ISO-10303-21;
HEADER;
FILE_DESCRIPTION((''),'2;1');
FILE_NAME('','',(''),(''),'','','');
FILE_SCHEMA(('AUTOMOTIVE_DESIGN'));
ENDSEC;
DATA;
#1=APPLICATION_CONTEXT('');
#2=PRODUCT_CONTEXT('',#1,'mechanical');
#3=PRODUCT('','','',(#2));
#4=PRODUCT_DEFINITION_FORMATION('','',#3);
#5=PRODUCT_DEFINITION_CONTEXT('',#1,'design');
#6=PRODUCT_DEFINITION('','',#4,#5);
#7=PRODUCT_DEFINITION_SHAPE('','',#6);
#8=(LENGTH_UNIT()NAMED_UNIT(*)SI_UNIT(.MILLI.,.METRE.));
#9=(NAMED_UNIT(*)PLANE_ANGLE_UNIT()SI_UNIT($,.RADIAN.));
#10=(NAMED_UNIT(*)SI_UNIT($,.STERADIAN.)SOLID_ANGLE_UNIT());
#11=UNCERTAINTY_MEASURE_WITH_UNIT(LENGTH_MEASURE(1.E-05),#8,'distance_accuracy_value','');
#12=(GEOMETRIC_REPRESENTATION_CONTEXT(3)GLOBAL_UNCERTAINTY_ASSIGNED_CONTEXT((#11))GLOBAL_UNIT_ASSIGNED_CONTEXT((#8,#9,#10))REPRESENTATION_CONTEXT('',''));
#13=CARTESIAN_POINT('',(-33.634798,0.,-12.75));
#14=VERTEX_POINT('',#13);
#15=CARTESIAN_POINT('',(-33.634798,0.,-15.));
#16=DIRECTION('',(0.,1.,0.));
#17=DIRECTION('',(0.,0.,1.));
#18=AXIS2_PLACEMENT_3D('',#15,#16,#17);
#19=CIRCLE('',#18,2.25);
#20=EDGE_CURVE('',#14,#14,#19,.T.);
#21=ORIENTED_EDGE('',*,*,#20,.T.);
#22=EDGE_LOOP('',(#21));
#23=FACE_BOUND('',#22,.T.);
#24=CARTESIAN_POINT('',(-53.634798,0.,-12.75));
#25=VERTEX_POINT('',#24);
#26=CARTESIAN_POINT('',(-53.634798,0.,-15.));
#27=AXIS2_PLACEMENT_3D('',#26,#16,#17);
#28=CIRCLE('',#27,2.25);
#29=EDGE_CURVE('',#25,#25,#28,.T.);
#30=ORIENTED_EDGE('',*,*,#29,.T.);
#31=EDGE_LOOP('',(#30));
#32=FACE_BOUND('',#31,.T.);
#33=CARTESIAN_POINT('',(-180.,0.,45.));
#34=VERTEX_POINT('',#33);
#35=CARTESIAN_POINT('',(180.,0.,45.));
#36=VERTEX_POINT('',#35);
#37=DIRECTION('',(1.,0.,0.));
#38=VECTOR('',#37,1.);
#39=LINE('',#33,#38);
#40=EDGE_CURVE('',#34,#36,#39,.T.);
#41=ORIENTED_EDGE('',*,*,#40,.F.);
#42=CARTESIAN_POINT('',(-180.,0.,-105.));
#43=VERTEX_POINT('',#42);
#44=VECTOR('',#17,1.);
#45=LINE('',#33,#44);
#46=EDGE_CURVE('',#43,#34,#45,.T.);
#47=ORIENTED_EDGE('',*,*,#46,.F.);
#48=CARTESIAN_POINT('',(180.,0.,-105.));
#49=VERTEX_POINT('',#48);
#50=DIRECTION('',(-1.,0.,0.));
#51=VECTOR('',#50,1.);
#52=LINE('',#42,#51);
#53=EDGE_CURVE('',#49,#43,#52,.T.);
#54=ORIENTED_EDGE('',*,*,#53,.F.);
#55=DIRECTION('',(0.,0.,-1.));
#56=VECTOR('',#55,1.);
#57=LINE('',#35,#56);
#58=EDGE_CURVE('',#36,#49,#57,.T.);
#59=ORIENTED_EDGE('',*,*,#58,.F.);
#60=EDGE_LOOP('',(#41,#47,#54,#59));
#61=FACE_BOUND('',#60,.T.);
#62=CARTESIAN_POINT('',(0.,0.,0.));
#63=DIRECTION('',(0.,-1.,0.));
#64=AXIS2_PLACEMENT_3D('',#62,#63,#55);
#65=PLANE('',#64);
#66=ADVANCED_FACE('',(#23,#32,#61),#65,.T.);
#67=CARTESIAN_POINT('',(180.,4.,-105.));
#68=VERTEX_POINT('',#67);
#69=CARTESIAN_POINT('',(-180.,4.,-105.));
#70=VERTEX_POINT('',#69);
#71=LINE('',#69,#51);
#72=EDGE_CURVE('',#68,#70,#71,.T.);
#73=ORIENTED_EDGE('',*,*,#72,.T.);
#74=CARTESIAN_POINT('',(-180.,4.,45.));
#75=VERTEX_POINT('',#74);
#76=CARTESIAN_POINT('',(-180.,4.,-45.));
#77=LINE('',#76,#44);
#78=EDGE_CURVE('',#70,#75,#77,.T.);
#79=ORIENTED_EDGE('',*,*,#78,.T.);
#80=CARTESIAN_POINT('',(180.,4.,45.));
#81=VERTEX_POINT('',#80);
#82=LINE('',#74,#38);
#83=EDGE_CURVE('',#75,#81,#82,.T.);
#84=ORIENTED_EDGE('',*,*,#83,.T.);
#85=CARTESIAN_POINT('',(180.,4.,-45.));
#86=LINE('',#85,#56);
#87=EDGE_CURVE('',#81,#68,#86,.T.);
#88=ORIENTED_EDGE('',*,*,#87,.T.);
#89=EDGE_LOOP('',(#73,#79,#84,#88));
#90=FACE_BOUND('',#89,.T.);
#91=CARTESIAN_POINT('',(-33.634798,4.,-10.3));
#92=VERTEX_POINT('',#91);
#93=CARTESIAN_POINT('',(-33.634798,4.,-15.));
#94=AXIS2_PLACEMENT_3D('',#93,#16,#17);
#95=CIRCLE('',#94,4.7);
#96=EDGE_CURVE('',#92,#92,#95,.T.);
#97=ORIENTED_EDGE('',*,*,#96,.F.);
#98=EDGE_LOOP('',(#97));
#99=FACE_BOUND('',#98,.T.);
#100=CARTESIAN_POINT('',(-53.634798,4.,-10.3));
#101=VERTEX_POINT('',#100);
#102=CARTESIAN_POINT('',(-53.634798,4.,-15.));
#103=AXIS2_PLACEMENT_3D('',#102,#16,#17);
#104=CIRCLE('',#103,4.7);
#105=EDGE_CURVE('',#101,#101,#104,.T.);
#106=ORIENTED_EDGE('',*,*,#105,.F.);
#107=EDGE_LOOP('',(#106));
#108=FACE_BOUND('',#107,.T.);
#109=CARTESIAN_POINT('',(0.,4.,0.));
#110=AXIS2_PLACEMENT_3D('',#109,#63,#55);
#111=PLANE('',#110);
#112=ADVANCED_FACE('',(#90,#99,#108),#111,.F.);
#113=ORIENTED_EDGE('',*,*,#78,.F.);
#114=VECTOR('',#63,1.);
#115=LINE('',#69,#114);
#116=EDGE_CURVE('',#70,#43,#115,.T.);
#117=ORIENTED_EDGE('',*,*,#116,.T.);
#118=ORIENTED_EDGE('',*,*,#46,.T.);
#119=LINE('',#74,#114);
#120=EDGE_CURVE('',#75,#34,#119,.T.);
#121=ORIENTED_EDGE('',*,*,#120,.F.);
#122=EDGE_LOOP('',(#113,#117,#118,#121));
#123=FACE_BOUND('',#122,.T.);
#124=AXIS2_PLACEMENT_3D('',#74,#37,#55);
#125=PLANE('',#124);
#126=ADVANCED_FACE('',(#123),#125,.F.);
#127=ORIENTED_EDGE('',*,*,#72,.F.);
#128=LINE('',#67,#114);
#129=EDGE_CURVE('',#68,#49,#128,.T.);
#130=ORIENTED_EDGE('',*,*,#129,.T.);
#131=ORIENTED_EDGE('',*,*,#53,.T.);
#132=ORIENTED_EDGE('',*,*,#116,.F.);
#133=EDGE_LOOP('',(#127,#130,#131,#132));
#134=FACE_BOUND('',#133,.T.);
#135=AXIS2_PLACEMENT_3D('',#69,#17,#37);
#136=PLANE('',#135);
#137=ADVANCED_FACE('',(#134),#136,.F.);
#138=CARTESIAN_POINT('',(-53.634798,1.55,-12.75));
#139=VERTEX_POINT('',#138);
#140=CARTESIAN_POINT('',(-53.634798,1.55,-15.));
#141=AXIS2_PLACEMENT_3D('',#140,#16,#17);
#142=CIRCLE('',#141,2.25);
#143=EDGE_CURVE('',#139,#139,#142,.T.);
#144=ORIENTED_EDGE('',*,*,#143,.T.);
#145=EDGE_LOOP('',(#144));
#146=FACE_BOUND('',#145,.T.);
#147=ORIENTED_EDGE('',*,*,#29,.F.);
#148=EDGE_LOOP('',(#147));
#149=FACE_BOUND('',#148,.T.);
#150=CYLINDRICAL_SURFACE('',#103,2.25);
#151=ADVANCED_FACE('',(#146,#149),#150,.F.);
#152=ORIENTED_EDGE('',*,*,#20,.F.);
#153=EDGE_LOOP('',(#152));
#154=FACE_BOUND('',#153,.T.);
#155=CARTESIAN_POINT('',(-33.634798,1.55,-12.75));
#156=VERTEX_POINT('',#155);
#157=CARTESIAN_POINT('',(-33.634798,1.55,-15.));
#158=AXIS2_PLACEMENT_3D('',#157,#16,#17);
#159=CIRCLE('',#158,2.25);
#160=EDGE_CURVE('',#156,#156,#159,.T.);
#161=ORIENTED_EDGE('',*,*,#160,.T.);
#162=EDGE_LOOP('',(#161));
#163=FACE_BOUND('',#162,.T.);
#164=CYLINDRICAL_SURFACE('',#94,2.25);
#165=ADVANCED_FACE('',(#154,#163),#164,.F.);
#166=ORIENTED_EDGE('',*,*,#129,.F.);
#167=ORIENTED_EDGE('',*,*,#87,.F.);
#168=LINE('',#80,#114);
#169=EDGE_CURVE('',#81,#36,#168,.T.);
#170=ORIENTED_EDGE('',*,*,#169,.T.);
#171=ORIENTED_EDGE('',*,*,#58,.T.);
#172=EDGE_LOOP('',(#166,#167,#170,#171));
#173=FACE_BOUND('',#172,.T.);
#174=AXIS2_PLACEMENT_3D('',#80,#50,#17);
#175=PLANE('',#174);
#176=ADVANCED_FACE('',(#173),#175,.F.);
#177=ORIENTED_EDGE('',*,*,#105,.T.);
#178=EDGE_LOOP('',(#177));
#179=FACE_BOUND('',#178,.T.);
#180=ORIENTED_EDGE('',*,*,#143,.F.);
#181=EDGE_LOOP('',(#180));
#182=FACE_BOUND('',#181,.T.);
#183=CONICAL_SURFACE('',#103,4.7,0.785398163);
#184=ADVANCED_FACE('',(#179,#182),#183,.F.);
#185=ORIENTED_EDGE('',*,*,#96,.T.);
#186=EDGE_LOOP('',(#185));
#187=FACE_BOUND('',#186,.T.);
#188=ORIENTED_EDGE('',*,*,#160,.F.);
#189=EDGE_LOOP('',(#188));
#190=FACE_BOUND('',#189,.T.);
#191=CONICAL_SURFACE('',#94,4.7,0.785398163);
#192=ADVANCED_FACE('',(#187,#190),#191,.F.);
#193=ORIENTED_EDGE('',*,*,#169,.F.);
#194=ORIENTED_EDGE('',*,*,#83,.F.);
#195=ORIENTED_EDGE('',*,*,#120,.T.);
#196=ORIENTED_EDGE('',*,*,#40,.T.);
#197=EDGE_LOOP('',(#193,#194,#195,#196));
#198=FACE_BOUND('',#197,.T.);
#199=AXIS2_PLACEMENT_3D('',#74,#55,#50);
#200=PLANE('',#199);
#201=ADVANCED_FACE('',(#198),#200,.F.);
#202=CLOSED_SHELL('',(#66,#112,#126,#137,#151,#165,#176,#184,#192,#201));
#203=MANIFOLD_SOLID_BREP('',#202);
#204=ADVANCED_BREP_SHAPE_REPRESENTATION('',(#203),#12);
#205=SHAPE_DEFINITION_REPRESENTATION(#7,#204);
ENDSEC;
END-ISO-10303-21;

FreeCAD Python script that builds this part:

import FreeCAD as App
import Part
import Sketcher
Q = App.Units.Quantity


def add_polygon(sketch, points):
    """Adds a closed chain of lines whose ends are joined by coincident constraints."""
    first, n = sketch.GeometryCount, len(points)
    for a, b in zip(points, points[1:] + points[:1]):
        sketch.addGeometry(Part.LineSegment(App.Vector(*a, 0), App.Vector(*b, 0)), False)
    for i in range(n):
        sketch.addConstraint(Sketcher.Constraint("Coincident", first + i, 2, first + (i + 1) % n, 1))

doc = App.newDocument("Part")
params = doc.addObject("Spreadsheet::Sheet", "Params")
for row, (alias, value) in enumerate([
    ("sketch1_width", "360 mm"),
    ("sketch1_height", "150 mm"),
    ("pad1_length", "4 mm"),
    ("sketch2_width", "4 mm"),
    ("sketch2_height", "4.7 mm"),
    ("sketch2_width2", "1.55 mm"),
    ("groove_angle", "360 deg"),
    ("linearpattern_pitch", "20 mm"),
], start=1):
    params.set(f"A{row}", alias)
    params.set(f"B{row}", "=" + value)
    params.setAlias(f"B{row}", alias)

body = doc.addObject("PartDesign::Body", "Body")

sketch1 = body.newObject("Sketcher::SketchObject", "Sketch")
sketch1.AttachmentSupport = (doc.getObject("XZ_Plane"), [""])
sketch1.MapMode = "FlatFace"
add_polygon(sketch1, [(-180, 45), (180, 45), (180, -105), (-180, -105)])
sketch1.addConstraint([
    Sketcher.Constraint("Horizontal", 0),
    Sketcher.Constraint("Vertical", 1),
    Sketcher.Constraint("Horizontal", 2),
    Sketcher.Constraint("Vertical", 3),
    Sketcher.Constraint("DistanceX", 0, 1, 0, 2, Q("360 mm")),
    Sketcher.Constraint("DistanceY", 1, 2, 1, 1, Q("150 mm")),
    Sketcher.Constraint("DistanceX", -1, 1, 0, 2, Q("180 mm")),
    Sketcher.Constraint("DistanceY", -1, 1, 0, 2, Q("45 mm")),
])
sketch1.setExpression("Constraints[8]", "Params.sketch1_width")
sketch1.setExpression("Constraints[9]", "Params.sketch1_height")
pad1 = body.newObject("PartDesign::Pad", "Pad")
pad1.Profile = sketch1
pad1.setExpression("Length", "Params.pad1_length")
pad1.Reversed = True

sketch2 = body.newObject("Sketcher::SketchObject", "Sketch001")
sketch2.AttachmentSupport = (doc.getObject("YZ_Plane"), [""])
sketch2.MapMode = "FlatFace"
sketch2.AttachmentOffset = App.Placement(App.Vector(0, 0, -53.634798), App.Rotation())
add_polygon(sketch2, [(0, -15), (4, -15), (4, -10.3), (1.6, -12.8), (0, -12.8)])
sketch2.addGeometry(Part.LineSegment(App.Vector(4, -15, 0), App.Vector(0, -15, 0)), True)
sketch2.addConstraint([
    Sketcher.Constraint("Horizontal", 0),
    Sketcher.Constraint("Vertical", 1),
    Sketcher.Constraint("Horizontal", 3),
    Sketcher.Constraint("Vertical", 4),
    Sketcher.Constraint("Horizontal", 5),
    Sketcher.Constraint("Coincident", 5, 1, 0, 2),
    Sketcher.Constraint("PointOnObject", 3, 2, -2),
    Sketcher.Constraint("PointOnObject", 5, 2, -2),
    Sketcher.Constraint("DistanceX", 0, 1, 0, 2, Q("4 mm")),
    Sketcher.Constraint("Angle", 2, Q("-135 deg")),
    Sketcher.Constraint("DistanceY", 1, 1, 1, 2, Q("4.7 mm")),
    Sketcher.Constraint("DistanceY", 0, 2, -1, 1, Q("15 mm")),
    Sketcher.Constraint("DistanceX", 3, 2, 3, 1, Q("1.55 mm")),
])
sketch2.setExpression("Constraints[13]", "Params.sketch2_width")
sketch2.setExpression("Constraints[15]", "Params.sketch2_height")
sketch2.setExpression("Constraints[17]", "Params.sketch2_width2")
groove = body.newObject("PartDesign::Groove", "Groove")
groove.Profile = sketch2
groove.ReferenceAxis = (sketch2, ["Axis0"])
groove.setExpression("Angle", "Params.groove_angle")
doc.recompute()

linearpattern = body.newObject("PartDesign::LinearPattern", "LinearPattern")
linearpattern.Originals = [groove]
linearpattern.Direction = (doc.getObject("X_Axis"), [""])
linearpattern.Mode = "offset"
linearpattern.setExpression("Offset", "Params.linearpattern_pitch")
linearpattern.Occurrences = 2
body.Tip = linearpattern

doc.recompute()
